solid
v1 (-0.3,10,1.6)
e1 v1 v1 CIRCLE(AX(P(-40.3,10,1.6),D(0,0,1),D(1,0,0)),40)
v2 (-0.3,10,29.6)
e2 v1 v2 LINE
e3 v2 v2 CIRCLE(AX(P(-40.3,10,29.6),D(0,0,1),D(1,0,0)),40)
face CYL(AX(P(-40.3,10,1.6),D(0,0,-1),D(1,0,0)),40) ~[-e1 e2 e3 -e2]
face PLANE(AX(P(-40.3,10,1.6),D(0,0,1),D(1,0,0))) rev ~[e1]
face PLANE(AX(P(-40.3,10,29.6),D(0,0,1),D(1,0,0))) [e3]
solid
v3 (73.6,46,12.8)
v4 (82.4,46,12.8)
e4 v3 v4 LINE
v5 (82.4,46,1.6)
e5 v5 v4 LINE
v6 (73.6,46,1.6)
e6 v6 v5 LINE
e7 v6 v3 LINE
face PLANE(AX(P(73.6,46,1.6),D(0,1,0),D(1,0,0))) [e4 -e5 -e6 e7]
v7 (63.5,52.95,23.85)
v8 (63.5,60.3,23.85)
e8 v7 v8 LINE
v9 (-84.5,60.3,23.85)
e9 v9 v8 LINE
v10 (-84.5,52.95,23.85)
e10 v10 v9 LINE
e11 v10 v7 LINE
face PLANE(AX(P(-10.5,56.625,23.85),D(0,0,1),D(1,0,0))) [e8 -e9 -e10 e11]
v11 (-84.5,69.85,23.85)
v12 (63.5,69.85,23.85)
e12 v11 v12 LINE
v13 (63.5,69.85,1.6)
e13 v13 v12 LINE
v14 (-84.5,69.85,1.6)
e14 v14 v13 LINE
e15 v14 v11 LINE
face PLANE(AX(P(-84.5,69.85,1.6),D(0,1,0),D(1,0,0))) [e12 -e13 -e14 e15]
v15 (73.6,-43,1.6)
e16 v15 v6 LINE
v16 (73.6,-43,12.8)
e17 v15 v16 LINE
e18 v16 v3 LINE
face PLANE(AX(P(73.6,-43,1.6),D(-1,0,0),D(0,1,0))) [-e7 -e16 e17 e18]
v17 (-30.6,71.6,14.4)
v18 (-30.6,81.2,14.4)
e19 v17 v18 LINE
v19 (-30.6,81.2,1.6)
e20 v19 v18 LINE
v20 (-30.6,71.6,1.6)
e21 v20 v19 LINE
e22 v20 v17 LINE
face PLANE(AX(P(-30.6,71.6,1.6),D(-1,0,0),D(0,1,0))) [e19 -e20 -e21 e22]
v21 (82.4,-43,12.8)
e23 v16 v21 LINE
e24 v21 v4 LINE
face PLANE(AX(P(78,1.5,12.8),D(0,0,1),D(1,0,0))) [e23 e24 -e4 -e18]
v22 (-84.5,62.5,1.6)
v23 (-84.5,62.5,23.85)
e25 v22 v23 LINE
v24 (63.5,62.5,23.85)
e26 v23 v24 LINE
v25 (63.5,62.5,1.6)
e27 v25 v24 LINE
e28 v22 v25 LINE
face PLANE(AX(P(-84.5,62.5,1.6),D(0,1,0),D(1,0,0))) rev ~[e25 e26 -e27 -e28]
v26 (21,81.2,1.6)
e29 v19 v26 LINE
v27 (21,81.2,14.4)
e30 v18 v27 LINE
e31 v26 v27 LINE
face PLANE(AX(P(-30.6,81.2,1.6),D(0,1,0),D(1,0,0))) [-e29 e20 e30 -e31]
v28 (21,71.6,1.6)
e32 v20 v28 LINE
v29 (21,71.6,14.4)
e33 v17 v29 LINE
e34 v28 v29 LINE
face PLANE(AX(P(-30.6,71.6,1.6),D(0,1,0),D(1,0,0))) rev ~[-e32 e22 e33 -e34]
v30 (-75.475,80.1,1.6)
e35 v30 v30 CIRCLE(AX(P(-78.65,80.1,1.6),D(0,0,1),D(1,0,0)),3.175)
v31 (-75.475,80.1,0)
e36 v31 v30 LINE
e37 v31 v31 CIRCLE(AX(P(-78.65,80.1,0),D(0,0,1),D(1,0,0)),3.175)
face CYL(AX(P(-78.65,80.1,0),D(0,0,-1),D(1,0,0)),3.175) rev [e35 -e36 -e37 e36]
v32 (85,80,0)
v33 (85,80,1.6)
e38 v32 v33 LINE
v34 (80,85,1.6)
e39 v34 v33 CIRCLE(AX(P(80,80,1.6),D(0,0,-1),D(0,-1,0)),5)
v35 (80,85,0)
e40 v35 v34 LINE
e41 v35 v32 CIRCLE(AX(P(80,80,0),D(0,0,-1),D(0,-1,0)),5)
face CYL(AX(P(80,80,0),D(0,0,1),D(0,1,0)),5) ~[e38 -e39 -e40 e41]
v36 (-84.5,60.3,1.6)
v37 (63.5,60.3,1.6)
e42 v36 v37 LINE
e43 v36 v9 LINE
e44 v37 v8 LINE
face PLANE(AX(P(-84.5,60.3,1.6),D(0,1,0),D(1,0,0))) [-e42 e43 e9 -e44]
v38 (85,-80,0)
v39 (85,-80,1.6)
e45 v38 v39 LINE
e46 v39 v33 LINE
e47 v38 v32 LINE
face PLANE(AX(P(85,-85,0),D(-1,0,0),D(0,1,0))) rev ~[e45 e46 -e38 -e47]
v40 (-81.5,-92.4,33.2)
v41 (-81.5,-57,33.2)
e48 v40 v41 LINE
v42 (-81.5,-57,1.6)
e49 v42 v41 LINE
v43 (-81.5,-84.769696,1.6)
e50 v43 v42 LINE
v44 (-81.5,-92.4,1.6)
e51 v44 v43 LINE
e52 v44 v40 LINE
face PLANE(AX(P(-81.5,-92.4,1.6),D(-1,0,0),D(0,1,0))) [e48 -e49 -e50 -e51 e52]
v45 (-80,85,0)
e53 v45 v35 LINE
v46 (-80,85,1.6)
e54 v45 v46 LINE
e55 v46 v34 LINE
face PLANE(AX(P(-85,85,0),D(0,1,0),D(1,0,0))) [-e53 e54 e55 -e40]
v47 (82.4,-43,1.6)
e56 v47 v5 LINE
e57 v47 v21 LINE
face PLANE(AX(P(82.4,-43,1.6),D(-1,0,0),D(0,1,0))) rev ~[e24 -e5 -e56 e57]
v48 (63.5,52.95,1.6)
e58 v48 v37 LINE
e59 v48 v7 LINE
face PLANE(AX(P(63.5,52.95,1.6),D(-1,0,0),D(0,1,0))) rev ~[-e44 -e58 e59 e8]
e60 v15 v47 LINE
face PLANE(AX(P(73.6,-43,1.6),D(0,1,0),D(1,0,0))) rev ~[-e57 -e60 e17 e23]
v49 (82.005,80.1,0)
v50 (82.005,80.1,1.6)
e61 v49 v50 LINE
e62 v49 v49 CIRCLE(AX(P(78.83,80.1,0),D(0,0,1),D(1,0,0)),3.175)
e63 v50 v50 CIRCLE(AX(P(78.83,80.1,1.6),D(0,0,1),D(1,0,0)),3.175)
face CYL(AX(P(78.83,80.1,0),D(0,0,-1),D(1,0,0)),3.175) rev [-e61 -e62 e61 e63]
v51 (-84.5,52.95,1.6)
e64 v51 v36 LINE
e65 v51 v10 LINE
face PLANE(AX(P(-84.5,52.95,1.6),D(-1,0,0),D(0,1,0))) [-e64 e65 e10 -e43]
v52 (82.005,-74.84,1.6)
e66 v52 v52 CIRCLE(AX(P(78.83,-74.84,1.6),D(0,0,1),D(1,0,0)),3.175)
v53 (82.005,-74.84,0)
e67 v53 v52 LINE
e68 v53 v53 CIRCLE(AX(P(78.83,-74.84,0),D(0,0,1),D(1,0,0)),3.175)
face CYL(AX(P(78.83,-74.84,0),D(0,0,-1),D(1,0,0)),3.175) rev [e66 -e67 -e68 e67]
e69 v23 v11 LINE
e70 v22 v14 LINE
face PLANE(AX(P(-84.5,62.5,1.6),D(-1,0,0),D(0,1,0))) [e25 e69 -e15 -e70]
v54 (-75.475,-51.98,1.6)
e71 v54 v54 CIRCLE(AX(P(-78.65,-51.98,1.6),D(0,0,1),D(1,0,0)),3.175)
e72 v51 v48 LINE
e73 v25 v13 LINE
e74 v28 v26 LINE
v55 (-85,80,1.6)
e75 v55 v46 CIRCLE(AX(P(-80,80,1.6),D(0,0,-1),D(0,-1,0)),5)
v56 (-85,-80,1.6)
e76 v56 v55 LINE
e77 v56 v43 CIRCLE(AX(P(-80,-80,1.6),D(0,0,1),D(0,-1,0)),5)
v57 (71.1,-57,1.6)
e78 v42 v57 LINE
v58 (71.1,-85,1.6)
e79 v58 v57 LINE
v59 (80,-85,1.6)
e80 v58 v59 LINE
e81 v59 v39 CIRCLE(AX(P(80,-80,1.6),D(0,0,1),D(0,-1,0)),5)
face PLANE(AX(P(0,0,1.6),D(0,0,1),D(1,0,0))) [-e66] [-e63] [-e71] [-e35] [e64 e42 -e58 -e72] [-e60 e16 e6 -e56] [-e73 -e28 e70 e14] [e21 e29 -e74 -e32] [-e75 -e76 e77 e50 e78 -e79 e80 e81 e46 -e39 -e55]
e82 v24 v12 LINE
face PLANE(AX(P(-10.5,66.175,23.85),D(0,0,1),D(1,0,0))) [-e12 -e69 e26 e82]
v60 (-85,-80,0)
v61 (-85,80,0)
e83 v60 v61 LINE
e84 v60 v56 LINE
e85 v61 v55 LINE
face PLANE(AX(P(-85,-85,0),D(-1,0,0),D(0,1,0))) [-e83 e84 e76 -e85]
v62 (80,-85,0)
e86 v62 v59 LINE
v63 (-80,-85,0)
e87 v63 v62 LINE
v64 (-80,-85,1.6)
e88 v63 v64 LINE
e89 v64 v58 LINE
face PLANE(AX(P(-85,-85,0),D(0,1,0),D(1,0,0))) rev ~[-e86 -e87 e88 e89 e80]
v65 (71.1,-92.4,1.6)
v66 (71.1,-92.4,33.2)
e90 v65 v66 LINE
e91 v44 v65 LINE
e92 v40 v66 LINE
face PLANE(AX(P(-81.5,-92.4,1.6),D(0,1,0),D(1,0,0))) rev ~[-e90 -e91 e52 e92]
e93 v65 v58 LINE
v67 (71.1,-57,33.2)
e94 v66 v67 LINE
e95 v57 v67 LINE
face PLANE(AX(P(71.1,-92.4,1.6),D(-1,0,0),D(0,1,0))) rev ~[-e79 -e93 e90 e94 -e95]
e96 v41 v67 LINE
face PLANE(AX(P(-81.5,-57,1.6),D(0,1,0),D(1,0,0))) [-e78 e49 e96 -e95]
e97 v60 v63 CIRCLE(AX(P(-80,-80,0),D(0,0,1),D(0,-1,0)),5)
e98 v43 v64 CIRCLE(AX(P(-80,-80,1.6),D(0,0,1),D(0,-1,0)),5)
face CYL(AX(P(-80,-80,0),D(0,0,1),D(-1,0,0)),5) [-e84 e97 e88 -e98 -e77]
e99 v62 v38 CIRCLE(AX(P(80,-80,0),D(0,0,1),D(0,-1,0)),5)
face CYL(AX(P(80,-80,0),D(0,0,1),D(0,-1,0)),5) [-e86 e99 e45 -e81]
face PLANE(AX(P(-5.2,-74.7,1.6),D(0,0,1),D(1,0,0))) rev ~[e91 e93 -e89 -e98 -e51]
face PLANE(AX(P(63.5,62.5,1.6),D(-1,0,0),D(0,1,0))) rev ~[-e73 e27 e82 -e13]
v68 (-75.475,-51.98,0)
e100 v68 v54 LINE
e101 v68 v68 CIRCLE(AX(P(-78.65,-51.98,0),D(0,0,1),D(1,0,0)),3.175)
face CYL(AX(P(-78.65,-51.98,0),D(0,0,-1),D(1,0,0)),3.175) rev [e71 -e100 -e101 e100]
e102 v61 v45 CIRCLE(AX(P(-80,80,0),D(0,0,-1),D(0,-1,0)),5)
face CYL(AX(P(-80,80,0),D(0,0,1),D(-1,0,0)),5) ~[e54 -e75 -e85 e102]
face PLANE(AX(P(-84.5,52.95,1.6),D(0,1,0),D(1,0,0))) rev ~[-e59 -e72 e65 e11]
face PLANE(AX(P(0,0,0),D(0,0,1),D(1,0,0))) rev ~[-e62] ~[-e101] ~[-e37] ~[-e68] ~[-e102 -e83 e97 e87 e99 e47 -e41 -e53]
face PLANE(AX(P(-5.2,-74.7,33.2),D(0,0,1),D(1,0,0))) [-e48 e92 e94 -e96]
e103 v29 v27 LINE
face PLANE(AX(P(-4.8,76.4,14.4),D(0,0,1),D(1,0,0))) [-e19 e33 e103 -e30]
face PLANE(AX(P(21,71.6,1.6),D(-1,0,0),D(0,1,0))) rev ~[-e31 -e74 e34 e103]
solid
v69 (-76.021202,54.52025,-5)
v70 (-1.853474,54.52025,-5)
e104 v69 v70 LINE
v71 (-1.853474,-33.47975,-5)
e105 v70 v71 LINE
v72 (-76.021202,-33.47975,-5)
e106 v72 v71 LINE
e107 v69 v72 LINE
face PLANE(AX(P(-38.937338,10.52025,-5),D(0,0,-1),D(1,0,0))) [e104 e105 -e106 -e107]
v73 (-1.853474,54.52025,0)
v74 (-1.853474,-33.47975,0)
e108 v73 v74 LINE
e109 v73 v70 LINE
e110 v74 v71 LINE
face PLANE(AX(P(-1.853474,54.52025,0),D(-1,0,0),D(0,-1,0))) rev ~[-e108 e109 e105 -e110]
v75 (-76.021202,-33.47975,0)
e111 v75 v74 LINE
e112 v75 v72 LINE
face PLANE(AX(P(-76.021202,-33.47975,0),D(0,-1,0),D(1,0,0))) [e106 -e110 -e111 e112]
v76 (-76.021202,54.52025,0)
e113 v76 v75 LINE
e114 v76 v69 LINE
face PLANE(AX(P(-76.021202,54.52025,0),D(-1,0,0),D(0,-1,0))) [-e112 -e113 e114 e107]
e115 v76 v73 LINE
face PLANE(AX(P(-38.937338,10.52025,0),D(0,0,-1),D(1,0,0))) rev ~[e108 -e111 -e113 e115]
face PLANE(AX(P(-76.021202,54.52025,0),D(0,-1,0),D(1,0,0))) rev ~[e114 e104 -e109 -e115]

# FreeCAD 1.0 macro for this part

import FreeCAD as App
import Part
import Sketcher


def edges_at(feature, points):
    """Names of the edges that pass closest to the given points."""
    edges = feature.Shape.Edges
    near = lambda p: min(range(len(edges)), key=lambda i: edges[i].distToShape(Part.Vertex(*p))[0])
    return sorted({f"Edge{near(p) + 1}" for p in points})


def add_polygon(sketch, points):
    """Adds a closed chain of lines whose ends are joined by coincident constraints."""
    first, n = sketch.GeometryCount, len(points)
    for a, b in zip(points, points[1:] + points[:1]):
        sketch.addGeometry(Part.LineSegment(App.Vector(*a, 0), App.Vector(*b, 0)), False)
    for i in range(n):
        sketch.addConstraint(Sketcher.Constraint("Coincident", first + i, 2, first + (i + 1) % n, 1))

doc = App.newDocument("Part")
body = doc.addObject("PartDesign::Body", "Body")

# Sketch on XY plane
sketch1 = doc.addObject("Sketcher::SketchObject", "Sketch")
body.addObject(sketch1)
sketch1.AttachmentSupport = (doc.XY_Plane, [""])
sketch1.MapMode = "FlatFace"
add_polygon(sketch1, [(-85, 85), (-85, -85), (85, -85), (85, 85)])  # lines 0-3
sketch1.addGeometry(Part.Circle(App.Vector(-78.7, -52, 0), App.Vector(0, 0, 1), 3.2), False)  # 4
sketch1.addGeometry(Part.Circle(App.Vector(78.8, -74.8, 0), App.Vector(0, 0, 1), 3.2), False)  # 5
sketch1.addGeometry(Part.Circle(App.Vector(-78.7, 80.1, 0), App.Vector(0, 0, 1), 3.2), False)  # 6
sketch1.addGeometry(Part.Circle(App.Vector(78.8, 80.1, 0), App.Vector(0, 0, 1), 3.2), False)  # 7
sketch1.addConstraint(Sketcher.Constraint("Vertical", 0))
sketch1.addConstraint(Sketcher.Constraint("Horizontal", 1))
sketch1.addConstraint(Sketcher.Constraint("Vertical", 2))
sketch1.addConstraint(Sketcher.Constraint("Horizontal", 3))
sketch1.addConstraint(Sketcher.Constraint("Equal", 4, 5))
sketch1.addConstraint(Sketcher.Constraint("Equal", 5, 6))
sketch1.addConstraint(Sketcher.Constraint("Equal", 6, 7))
sketch1.addConstraint(Sketcher.Constraint("Symmetric", 0, 2, 2, 2, -1, 1))
sketch1.addConstraint(Sketcher.Constraint("Horizontal", 6, 3, 7, 3))
sketch1.addConstraint(Sketcher.Constraint("Vertical", 4, 3, 6, 3))
sketch1.addConstraint(Sketcher.Constraint("Vertical", 5, 3, 7, 3))
sketch1.addConstraint(Sketcher.Constraint("Equal", 3, 0))
sketch1.addConstraint(Sketcher.Constraint("Diameter", 4, 6.35))
sketch1.addConstraint(Sketcher.Constraint("DistanceX", 1, 1, 1, 2, 170.0))
sketch1.addConstraint(Sketcher.Constraint("DistanceY", -1, 1, 6, 3, 80.1))
sketch1.addConstraint(Sketcher.Constraint("DistanceX", 4, 3, -1, 1, 78.65))
sketch1.addConstraint(Sketcher.Constraint("DistanceY", 4, 3, -1, 1, 51.98))
sketch1.addConstraint(Sketcher.Constraint("DistanceX", -1, 1, 5, 3, 78.83))
sketch1.addConstraint(Sketcher.Constraint("DistanceY", 5, 3, -1, 1, 74.84))
pad1 = doc.addObject("PartDesign::Pad", "Pad")
body.addObject(pad1)
pad1.Profile = sketch1
pad1.Length = 1.6
doc.recompute()

fillet = doc.addObject("PartDesign::Fillet", "Fillet")
body.addObject(fillet)
fillet.Base = (pad1, edges_at(pad1, [
    (-85, 85, 0.8),
    (-85, -85, 0.8),
    (85, -85, 0.8),
    (85, 85, 0.8),
]))
fillet.Radius = 5

# Sketch on XY plane
sketch2 = doc.addObject("Sketcher::SketchObject", "Sketch001")
body.addObject(sketch2)
sketch2.AttachmentSupport = (doc.XY_Plane, [""])
sketch2.MapMode = "FlatFace"
sketch2.AttachmentOffset = App.Placement(App.Vector(0, 0, 1.6), App.Rotation())
add_polygon(sketch2, [(-84, 60), (-84, 53), (64, 53), (64, 60)])  # lines 0-3
add_polygon(sketch2, [(-84, 70), (-84, 62), (64, 62), (64, 70)])  # lines 4-7
sketch2.addConstraint(Sketcher.Constraint("Vertical", 0))
sketch2.addConstraint(Sketcher.Constraint("Horizontal", 1))
sketch2.addConstraint(Sketcher.Constraint("Vertical", 2))
sketch2.addConstraint(Sketcher.Constraint("Horizontal", 3))
sketch2.addConstraint(Sketcher.Constraint("Vertical", 4))
sketch2.addConstraint(Sketcher.Constraint("Horizontal", 5))
sketch2.addConstraint(Sketcher.Constraint("Vertical", 6))
sketch2.addConstraint(Sketcher.Constraint("Horizontal", 7))
sketch2.addConstraint(Sketcher.Constraint("Vertical", 3, 2, 4, 2))
sketch2.addConstraint(Sketcher.Constraint("Vertical", 2, 2, 5, 2))
sketch2.addConstraint(Sketcher.Constraint("Equal", 2, 4))
sketch2.addConstraint(Sketcher.Constraint("DistanceX", 1, 1, 1, 2, 148.0))
sketch2.addConstraint(Sketcher.Constraint("DistanceY", 0, 2, 0, 1, 7.35))
sketch2.addConstraint(Sketcher.Constraint("DistanceX", 0, 2, -1, 1, 84.5))
sketch2.addConstraint(Sketcher.Constraint("DistanceY", -1, 1, 2, 2, 60.3))
sketch2.addConstraint(Sketcher.Constraint("DistanceY", -1, 1, 4, 2, 62.5))
pad2 = doc.addObject("PartDesign::Pad", "Pad001")
body.addObject(pad2)
pad2.Profile = sketch2
pad2.Length = 22.25

# Sketch on XY plane
sketch3 = doc.addObject("Sketcher::SketchObject", "Sketch002")
body.addObject(sketch3)
sketch3.AttachmentSupport = (doc.XY_Plane, [""])
sketch3.MapMode = "FlatFace"
sketch3.AttachmentOffset = App.Placement(App.Vector(0, 0, 1.6), App.Rotation())
add_polygon(sketch3, [(-82, -57), (-82, -92), (71, -92), (71, -57)])  # lines 0-3
sketch3.addConstraint(Sketcher.Constraint("Vertical", 0))
sketch3.addConstraint(Sketcher.Constraint("Horizontal", 1))
sketch3.addConstraint(Sketcher.Constraint("Vertical", 2))
sketch3.addConstraint(Sketcher.Constraint("Horizontal", 3))
sketch3.addConstraint(Sketcher.Constraint("DistanceX", 1, 1, 1, 2, 152.6))
sketch3.addConstraint(Sketcher.Constraint("DistanceY", 0, 2, 0, 1, 35.4))
sketch3.addConstraint(Sketcher.Constraint("DistanceY", 2, 2, -1, 1, 57.0))
sketch3.addConstraint(Sketcher.Constraint("DistanceX", 0, 2, -1, 1, 81.5))
pad3 = doc.addObject("PartDesign::Pad", "Pad002")
body.addObject(pad3)
pad3.Profile = sketch3
pad3.Length = 31.6

# Sketch on XY plane
sketch4 = doc.addObject("Sketcher::SketchObject", "Sketch003")
body.addObject(sketch4)
sketch4.AttachmentSupport = (doc.XY_Plane, [""])
sketch4.MapMode = "FlatFace"
sketch4.AttachmentOffset = App.Placement(App.Vector(0, 0, 1.6), App.Rotation())
add_polygon(sketch4, [(74, 46), (74, -43), (82, -43), (82, 46)])  # lines 0-3
sketch4.addConstraint(Sketcher.Constraint("Vertical", 0))
sketch4.addConstraint(Sketcher.Constraint("Horizontal", 1))
sketch4.addConstraint(Sketcher.Constraint("Vertical", 2))
sketch4.addConstraint(Sketcher.Constraint("Horizontal", 3))
sketch4.addConstraint(Sketcher.Constraint("DistanceY", 0, 2, 0, 1, 89.0))
sketch4.addConstraint(Sketcher.Constraint("DistanceX", 1, 1, 1, 2, 8.8))
sketch4.addConstraint(Sketcher.Constraint("DistanceY", 0, 2, -1, 1, 43.0))
sketch4.addConstraint(Sketcher.Constraint("DistanceX", -1, 1, 0, 2, 73.6))
pad4 = doc.addObject("PartDesign::Pad", "Pad003")
body.addObject(pad4)
pad4.Profile = sketch4
pad4.Length = 11.2

# Sketch on XY plane
sketch5 = doc.addObject("Sketcher::SketchObject", "Sketch004")
body.addObject(sketch5)
sketch5.AttachmentSupport = (doc.XY_Plane, [""])
sketch5.MapMode = "FlatFace"
sketch5.AttachmentOffset = App.Placement(App.Vector(0, 0, 1.6), App.Rotation())
add_polygon(sketch5, [(-31, 81), (-31, 72), (21, 72), (21, 81)])  # lines 0-3
sketch5.addConstraint(Sketcher.Constraint("Vertical", 0))
sketch5.addConstraint(Sketcher.Constraint("Horizontal", 1))
sketch5.addConstraint(Sketcher.Constraint("Vertical", 2))
sketch5.addConstraint(Sketcher.Constraint("Horizontal", 3))
sketch5.addConstraint(Sketcher.Constraint("DistanceX", 1, 1, 1, 2, 51.6))
sketch5.addConstraint(Sketcher.Constraint("DistanceY", 0, 2, 0, 1, 9.6))
sketch5.addConstraint(Sketcher.Constraint("DistanceX", -1, 1, 1, 2, 21.0))
sketch5.addConstraint(Sketcher.Constraint("DistanceY", -1, 1, 0, 2, 71.6))
pad5 = doc.addObject("PartDesign::Pad", "Pad004")
body.addObject(pad5)
pad5.Profile = sketch5
pad5.Length = 12.8
body2 = doc.addObject("PartDesign::Body", "Body001")

# Sketch on XY plane
sketch6 = doc.addObject("Sketcher::SketchObject", "Sketch005")
body2.addObject(sketch6)
sketch6.AttachmentSupport = (doc.getObject("XY_Plane001"), [""])
sketch6.MapMode = "FlatFace"
sketch6.AttachmentOffset = App.Placement(App.Vector(0, 0, 1.6), App.Rotation())
sketch6.addGeometry(Part.Circle(App.Vector(-40, 10, 0), App.Vector(0, 0, 1), 40), False)
sketch6.addConstraint(Sketcher.Constraint("Diameter", 0, 80.0))
sketch6.addConstraint(Sketcher.Constraint("DistanceY", -1, 1, 0, 3, 10.0))
sketch6.addConstraint(Sketcher.Constraint("DistanceX", 0, 3, -1, 1, 40.3))
pad6 = doc.addObject("PartDesign::Pad", "Pad005")
body2.addObject(pad6)
pad6.Profile = sketch6
pad6.Length = 28
body3 = doc.addObject("PartDesign::Body", "Body002")

# Sketch on XY plane
sketch7 = doc.addObject("Sketcher::SketchObject", "Sketch006")
body3.addObject(sketch7)
sketch7.AttachmentSupport = (doc.getObject("XY_Plane002"), [""])
sketch7.MapMode = "FlatFace"
add_polygon(sketch7, [(-76, -33), (-76, 55), (-2, 55), (-2, -33)])  # lines 0-3
sketch7.addConstraint(Sketcher.Constraint("Vertical", 0))
sketch7.addConstraint(Sketcher.Constraint("Horizontal", 1))
sketch7.addConstraint(Sketcher.Constraint("Vertical", 2))
sketch7.addConstraint(Sketcher.Constraint("Horizontal", 3))
sketch7.addConstraint(Sketcher.Constraint("DistanceY", 0, 1, 0, 2, 88.0))
sketch7.addConstraint(Sketcher.Constraint("DistanceX", 1, 1, 1, 2, 74.167728))
sketch7.addConstraint(Sketcher.Constraint("DistanceY", -1, 1, 0, 2, 54.52025))
sketch7.addConstraint(Sketcher.Constraint("DistanceX", 0, 2, -1, 1, 76.021202))
pad7 = doc.addObject("PartDesign::Pad", "Pad006")
body3.addObject(pad7)
pad7.Profile = sketch7
pad7.Length = 5
pad7.Reversed = True

doc.recompute()
